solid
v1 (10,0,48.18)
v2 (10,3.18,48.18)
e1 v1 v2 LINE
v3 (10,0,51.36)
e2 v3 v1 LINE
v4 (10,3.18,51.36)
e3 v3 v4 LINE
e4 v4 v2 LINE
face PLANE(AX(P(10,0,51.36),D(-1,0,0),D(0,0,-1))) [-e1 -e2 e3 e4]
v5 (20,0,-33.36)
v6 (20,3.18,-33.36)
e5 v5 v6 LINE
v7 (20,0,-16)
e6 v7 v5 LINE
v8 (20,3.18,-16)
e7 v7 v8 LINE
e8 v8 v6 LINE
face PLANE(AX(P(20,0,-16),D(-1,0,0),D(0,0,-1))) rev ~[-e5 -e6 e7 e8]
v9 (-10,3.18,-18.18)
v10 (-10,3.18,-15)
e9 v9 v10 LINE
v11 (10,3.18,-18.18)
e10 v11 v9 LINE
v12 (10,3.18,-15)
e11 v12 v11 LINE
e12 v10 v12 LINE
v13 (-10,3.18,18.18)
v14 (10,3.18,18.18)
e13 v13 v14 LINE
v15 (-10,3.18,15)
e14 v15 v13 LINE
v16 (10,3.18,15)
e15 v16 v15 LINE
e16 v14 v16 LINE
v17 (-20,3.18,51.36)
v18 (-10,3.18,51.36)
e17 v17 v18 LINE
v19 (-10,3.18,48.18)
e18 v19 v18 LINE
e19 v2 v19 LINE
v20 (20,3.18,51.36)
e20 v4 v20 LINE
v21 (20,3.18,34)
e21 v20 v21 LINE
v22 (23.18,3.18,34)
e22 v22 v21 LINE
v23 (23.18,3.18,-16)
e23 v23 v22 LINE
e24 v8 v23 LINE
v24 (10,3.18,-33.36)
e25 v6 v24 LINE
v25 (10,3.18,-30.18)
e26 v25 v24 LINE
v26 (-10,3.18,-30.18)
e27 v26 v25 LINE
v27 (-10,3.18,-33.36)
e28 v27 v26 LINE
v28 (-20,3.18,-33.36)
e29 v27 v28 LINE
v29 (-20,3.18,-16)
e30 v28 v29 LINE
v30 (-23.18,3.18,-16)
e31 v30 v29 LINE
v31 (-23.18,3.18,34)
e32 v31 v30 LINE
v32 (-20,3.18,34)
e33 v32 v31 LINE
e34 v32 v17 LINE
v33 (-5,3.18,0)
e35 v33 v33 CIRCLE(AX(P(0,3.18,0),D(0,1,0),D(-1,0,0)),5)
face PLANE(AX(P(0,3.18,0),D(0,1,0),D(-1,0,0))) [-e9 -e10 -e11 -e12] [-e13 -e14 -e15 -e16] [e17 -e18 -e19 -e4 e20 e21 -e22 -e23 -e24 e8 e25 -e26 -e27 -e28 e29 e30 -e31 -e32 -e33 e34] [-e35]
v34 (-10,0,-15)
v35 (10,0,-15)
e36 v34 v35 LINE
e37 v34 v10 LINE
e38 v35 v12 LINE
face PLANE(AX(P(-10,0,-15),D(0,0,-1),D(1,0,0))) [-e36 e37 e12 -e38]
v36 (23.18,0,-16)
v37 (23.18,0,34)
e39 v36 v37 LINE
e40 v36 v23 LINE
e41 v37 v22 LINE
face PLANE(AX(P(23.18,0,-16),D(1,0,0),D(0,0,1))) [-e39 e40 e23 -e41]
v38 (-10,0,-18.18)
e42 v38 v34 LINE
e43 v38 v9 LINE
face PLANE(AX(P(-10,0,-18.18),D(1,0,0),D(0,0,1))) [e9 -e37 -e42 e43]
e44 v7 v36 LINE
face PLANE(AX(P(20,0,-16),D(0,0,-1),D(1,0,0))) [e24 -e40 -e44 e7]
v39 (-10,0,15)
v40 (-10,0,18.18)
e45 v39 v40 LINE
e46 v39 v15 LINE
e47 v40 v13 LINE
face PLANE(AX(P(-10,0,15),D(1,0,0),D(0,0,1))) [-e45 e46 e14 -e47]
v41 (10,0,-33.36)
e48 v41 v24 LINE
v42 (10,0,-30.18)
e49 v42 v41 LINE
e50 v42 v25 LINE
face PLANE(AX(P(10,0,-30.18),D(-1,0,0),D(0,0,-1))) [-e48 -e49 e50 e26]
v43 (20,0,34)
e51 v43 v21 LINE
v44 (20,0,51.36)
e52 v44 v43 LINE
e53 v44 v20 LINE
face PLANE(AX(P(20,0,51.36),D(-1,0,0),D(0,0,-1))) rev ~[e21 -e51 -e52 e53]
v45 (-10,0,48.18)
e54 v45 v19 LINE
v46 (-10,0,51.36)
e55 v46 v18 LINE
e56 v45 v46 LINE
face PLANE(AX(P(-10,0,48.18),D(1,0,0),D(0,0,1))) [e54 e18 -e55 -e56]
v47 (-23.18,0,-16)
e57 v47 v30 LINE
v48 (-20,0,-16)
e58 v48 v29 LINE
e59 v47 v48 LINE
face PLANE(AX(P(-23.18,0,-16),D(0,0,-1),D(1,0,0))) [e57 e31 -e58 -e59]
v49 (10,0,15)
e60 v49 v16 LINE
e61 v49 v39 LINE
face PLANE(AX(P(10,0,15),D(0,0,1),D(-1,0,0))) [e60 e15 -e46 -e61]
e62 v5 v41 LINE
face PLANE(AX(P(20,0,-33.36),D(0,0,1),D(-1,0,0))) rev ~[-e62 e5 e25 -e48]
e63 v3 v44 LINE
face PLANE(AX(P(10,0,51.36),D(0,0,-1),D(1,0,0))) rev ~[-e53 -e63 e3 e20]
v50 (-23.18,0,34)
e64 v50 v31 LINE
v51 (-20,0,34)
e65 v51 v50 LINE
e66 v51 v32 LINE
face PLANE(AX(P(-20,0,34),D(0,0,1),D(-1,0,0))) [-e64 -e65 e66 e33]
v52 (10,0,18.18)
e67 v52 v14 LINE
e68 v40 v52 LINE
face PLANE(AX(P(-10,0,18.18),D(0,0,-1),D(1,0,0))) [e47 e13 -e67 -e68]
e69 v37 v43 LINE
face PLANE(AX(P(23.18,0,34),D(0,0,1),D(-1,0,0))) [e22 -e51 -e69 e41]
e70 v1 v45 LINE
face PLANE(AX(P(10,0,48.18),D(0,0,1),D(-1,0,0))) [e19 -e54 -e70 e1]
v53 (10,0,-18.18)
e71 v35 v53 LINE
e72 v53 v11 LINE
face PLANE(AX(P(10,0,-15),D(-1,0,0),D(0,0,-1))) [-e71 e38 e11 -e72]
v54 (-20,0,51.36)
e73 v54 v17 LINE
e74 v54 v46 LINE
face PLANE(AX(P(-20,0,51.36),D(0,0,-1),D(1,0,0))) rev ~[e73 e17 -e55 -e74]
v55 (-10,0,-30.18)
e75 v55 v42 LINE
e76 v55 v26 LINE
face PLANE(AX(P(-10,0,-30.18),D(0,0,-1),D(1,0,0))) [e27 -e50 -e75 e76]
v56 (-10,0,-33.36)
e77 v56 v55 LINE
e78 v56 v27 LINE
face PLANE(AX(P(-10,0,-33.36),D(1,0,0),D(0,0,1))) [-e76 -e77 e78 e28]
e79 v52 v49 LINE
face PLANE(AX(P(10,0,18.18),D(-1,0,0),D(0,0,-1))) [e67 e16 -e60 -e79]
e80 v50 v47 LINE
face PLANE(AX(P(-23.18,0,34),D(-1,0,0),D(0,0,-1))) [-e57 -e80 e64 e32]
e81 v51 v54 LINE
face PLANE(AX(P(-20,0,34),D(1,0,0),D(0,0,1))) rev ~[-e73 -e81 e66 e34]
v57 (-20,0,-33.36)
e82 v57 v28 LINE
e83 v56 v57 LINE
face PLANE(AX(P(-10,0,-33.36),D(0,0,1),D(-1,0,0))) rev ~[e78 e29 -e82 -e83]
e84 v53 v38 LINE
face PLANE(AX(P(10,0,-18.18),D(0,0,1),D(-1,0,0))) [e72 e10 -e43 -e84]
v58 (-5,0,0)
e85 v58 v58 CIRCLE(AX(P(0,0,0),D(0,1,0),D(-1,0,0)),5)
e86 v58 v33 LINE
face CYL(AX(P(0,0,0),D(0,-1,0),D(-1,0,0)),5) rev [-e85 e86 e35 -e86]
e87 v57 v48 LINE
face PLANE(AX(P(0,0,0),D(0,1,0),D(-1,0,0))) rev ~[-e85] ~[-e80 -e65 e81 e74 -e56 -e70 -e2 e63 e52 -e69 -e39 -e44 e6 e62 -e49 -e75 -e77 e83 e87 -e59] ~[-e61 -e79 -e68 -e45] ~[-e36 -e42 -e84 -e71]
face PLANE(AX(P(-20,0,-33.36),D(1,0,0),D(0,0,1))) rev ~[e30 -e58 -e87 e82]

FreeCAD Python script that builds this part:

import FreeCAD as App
import Part
import Sketcher
from FreeCAD import Vector
Q = App.Units.Quantity


def add_polygon(sketch, points):
    """Adds a closed chain of lines whose ends are joined by coincident constraints."""
    first, n = sketch.GeometryCount, len(points)
    for a, b in zip(points, points[1:] + points[:1]):
        sketch.addGeometry(Part.LineSegment(App.Vector(*a, 0), App.Vector(*b, 0)), False)
    for i in range(n):
        sketch.addConstraint(Sketcher.Constraint("Coincident", first + i, 2, first + (i + 1) % n, 1))

doc = App.newDocument("Part")
body = doc.addObject("PartDesign::Body", "Body")

# Sketch on XZ plane
sketch1 = doc.addObject("Sketcher::SketchObject", "Sketch")
body.addObject(sketch1)
sketch1.AttachmentSupport = (doc.XZ_Plane, [""])
sketch1.MapMode = "FlatFace"
add_polygon(sketch1, [(-20, 34), (-20, 51.4), (-10, 51.4), (-10, 48.2), (10, 48.2), (10, 51.4), (20, 51.4), (20, 34), (23.2, 34), (23.2, -16), (20, -16), (20, -33.4), (10, -33.4), (10, -30.2), (-10, -30.2), (-10, -33.4), (-20, -33.4), (-20, -16), (-23.2, -16), (-23.2, 34)])  # lines 0-19
add_polygon(sketch1, [(10, -15), (-10, -15), (-10, -18.2), (10, -18.2)])  # lines 20-23
sketch1.addGeometry(Part.Circle(Vector(0, 0, 0), Vector(0, 0, 1), 5), False)  # 24
add_polygon(sketch1, [(10, 18.2), (-10, 18.2), (-10, 15), (10, 15)])  # lines 25-28
sketch1.addConstraint(Sketcher.Constraint("Vertical", 0))
sketch1.addConstraint(Sketcher.Constraint("Horizontal", 1))
sketch1.addConstraint(Sketcher.Constraint("Vertical", 2))
sketch1.addConstraint(Sketcher.Constraint("Horizontal", 3))
sketch1.addConstraint(Sketcher.Constraint("Vertical", 4))
sketch1.addConstraint(Sketcher.Constraint("Horizontal", 5))
sketch1.addConstraint(Sketcher.Constraint("Vertical", 6))
sketch1.addConstraint(Sketcher.Constraint("Horizontal", 7))
sketch1.addConstraint(Sketcher.Constraint("Vertical", 8))
sketch1.addConstraint(Sketcher.Constraint("Horizontal", 9))
sketch1.addConstraint(Sketcher.Constraint("Vertical", 10))
sketch1.addConstraint(Sketcher.Constraint("Horizontal", 11))
sketch1.addConstraint(Sketcher.Constraint("Vertical", 12))
sketch1.addConstraint(Sketcher.Constraint("Horizontal", 13))
sketch1.addConstraint(Sketcher.Constraint("Vertical", 14))
sketch1.addConstraint(Sketcher.Constraint("Horizontal", 15))
sketch1.addConstraint(Sketcher.Constraint("Vertical", 16))
sketch1.addConstraint(Sketcher.Constraint("Horizontal", 17))
sketch1.addConstraint(Sketcher.Constraint("Vertical", 18))
sketch1.addConstraint(Sketcher.Constraint("Horizontal", 19))
sketch1.addConstraint(Sketcher.Constraint("Horizontal", 20))
sketch1.addConstraint(Sketcher.Constraint("Vertical", 21))
sketch1.addConstraint(Sketcher.Constraint("Horizontal", 22))
sketch1.addConstraint(Sketcher.Constraint("Vertical", 23))
sketch1.addConstraint(Sketcher.Constraint("Horizontal", 25))
sketch1.addConstraint(Sketcher.Constraint("Vertical", 26))
sketch1.addConstraint(Sketcher.Constraint("Horizontal", 27))
sketch1.addConstraint(Sketcher.Constraint("Vertical", 28))
sketch1.addConstraint(Sketcher.Constraint("Coincident", 24, 3, -1, 1))
sketch1.addConstraint(Sketcher.Constraint("Symmetric", 22, 2, 25, 2, -1, 1))
sketch1.addConstraint(Sketcher.Constraint("Symmetric", 20, 2, 27, 2, -1, 1))
sketch1.addConstraint(Sketcher.Constraint("Symmetric", 1, 2, 4, 2, -2))
sketch1.addConstraint(Sketcher.Constraint("Symmetric", 11, 2, 14, 2, -2))
sketch1.addConstraint(Sketcher.Constraint("Symmetric", 9, 2, 16, 2, -2))
sketch1.addConstraint(Sketcher.Constraint("Symmetric", 7, 2, 18, 2, -2))
sketch1.addConstraint(Sketcher.Constraint("Vertical", 6, 2, 9, 2))
sketch1.addConstraint(Sketcher.Constraint("Vertical", 4, 2, 11, 2))
sketch1.addConstraint(Sketcher.Constraint("Vertical", 0, 2, 15, 2))
sketch1.addConstraint(Sketcher.Constraint("Vertical", 14, 2, 20, 2))
sketch1.addConstraint(Sketcher.Constraint("Vertical", 12, 2, 22, 2))
sketch1.addConstraint(Sketcher.Constraint("Equal", 19, 2))
sketch1.addConstraint(Sketcher.Constraint("Equal", 6, 10))
sketch1.addConstraint(Sketcher.Constraint("Equal", 4, 12))
sketch1.addConstraint(Sketcher.Constraint("Equal", 14, 21))
sketch1.addConstraint(Sketcher.Constraint("Diameter", 24, Q("10 mm")))
sketch1.addConstraint(Sketcher.Constraint("DistanceX", 1, 1, 1, 2, Q("10 mm")))
sketch1.addConstraint(Sketcher.Constraint("DistanceX", 3, 1, 3, 2, Q("20 mm")))
sketch1.addConstraint(Sketcher.Constraint("DistanceY", 8, 2, 8, 1, Q("50 mm")))
sketch1.addConstraint(Sketcher.Constraint("DistanceY", 13, 2, 21, 2, Q("12 mm")))
sketch1.addConstraint(Sketcher.Constraint("DistanceY", 25, 2, 2, 2, Q("30 mm")))
sketch1.addConstraint(Sketcher.Constraint("DistanceY", 20, 2, 26, 2, Q("30 mm")))
sketch1.addConstraint(Sketcher.Constraint("DistanceX", 7, 1, 7, 2, Q("3.18 mm")))
pad1 = doc.addObject("PartDesign::Pad", "Pad")
body.addObject(pad1)
pad1.Profile = sketch1
pad1.Length = 3.18
pad1.Reversed = True

doc.recompute()
